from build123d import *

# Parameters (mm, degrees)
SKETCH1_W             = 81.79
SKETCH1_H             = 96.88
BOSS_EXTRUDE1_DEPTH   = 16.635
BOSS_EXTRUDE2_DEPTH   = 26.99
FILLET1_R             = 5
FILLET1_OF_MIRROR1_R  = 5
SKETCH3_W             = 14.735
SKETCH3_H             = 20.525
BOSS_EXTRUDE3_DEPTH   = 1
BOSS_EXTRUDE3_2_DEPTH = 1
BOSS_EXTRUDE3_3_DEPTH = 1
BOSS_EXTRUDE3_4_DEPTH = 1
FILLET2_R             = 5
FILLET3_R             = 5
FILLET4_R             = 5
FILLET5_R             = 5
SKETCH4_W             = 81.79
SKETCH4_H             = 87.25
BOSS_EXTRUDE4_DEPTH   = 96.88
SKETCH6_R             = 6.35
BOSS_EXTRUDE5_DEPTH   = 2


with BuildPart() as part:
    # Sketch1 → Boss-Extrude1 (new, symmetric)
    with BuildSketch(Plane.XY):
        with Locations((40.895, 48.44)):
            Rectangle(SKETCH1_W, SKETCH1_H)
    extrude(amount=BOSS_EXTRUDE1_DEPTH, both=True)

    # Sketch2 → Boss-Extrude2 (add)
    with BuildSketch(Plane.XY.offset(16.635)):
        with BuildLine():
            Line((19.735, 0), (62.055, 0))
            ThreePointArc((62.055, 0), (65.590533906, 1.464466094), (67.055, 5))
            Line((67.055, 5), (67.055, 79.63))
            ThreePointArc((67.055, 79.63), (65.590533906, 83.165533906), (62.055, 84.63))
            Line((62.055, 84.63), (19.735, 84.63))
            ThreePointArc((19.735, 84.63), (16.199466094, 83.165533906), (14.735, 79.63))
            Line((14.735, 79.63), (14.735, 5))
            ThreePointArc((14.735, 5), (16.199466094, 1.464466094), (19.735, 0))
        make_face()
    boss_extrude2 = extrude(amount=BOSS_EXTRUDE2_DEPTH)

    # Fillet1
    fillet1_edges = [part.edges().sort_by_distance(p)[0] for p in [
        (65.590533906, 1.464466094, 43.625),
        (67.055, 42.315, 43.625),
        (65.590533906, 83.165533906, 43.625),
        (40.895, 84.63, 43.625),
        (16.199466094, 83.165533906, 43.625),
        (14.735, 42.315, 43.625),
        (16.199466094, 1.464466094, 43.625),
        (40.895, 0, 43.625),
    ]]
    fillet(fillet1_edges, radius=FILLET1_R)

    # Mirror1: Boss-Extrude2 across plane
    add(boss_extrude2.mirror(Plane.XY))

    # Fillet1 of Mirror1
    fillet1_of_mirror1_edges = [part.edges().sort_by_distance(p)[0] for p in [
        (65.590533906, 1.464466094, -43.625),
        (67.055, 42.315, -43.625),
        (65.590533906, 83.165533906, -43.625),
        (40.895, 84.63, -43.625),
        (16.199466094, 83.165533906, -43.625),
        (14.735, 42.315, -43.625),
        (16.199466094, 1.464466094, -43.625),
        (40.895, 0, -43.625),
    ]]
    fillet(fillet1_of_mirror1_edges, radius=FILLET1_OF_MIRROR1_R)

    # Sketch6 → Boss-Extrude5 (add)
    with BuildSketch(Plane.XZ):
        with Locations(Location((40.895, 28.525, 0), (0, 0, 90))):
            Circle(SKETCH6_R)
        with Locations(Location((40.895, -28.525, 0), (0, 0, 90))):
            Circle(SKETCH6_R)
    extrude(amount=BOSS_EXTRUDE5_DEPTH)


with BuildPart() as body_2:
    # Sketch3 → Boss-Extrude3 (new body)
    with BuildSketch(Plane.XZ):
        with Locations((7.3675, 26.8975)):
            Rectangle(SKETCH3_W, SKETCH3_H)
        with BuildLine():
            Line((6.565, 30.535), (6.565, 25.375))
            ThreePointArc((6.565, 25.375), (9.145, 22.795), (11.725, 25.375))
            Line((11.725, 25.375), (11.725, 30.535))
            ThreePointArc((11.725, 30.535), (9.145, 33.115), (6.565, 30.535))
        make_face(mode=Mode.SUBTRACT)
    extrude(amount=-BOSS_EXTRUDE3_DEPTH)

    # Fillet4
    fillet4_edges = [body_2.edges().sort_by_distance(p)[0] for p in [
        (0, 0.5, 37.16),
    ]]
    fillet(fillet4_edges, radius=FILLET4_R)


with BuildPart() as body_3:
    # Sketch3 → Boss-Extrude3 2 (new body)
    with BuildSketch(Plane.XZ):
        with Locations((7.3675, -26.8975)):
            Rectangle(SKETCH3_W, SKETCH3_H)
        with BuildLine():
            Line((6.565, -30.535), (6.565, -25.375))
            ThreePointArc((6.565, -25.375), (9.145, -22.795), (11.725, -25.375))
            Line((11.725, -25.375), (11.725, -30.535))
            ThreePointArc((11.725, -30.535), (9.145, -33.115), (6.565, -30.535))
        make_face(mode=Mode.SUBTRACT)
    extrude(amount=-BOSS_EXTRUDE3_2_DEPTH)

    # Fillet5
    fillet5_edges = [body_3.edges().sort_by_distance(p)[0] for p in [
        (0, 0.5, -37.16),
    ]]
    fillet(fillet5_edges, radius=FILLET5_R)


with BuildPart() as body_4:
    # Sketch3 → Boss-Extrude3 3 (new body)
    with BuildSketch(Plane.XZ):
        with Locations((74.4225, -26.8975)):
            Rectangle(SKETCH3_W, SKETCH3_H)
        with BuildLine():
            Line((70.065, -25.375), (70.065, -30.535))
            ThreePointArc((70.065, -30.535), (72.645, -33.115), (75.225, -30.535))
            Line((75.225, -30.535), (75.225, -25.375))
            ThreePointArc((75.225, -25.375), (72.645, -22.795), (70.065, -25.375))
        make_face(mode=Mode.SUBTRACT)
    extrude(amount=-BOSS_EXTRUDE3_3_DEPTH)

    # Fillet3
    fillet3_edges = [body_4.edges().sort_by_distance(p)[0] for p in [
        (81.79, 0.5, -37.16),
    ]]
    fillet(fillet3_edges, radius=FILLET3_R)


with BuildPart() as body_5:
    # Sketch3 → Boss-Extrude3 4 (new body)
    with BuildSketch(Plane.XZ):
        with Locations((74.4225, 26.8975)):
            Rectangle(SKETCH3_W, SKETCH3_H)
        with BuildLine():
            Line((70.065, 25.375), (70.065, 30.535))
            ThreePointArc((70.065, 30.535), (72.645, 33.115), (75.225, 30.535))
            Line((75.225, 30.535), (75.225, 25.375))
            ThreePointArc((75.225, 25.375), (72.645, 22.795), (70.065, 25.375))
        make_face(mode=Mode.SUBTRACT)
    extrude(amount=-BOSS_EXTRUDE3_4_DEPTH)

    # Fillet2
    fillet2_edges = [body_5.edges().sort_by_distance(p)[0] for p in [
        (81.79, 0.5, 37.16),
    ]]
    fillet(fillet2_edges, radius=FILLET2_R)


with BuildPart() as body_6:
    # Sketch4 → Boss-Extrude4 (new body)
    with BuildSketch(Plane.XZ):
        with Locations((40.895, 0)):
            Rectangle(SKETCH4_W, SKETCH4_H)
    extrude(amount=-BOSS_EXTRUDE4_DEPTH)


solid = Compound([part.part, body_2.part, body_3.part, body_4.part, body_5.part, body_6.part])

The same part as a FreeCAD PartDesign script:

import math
import FreeCAD as App
import Part
import Sketcher
from FreeCAD import Vector


def edges_at(feature, points):
    """Names of the edges that pass closest to the given points."""
    edges = feature.Shape.Edges
    near = lambda p: min(range(len(edges)), key=lambda i: edges[i].distToShape(Part.Vertex(*p))[0])
    return sorted({f"Edge{near(p) + 1}" for p in points})


def add_polygon(sketch, points):
    """Adds a closed chain of lines whose ends are joined by coincident constraints."""
    first, n = sketch.GeometryCount, len(points)
    for a, b in zip(points, points[1:] + points[:1]):
        sketch.addGeometry(Part.LineSegment(App.Vector(*a, 0), App.Vector(*b, 0)), False)
    for i in range(n):
        sketch.addConstraint(Sketcher.Constraint("Coincident", first + i, 2, first + (i + 1) % n, 1))

doc = App.newDocument("Part")
body = doc.addObject("PartDesign::Body", "Body")

# Sketch on XY plane
sketch1 = doc.addObject("Sketcher::SketchObject", "Sketch")
body.addObject(sketch1)
sketch1.AttachmentSupport = (doc.XY_Plane, [""])
sketch1.MapMode = "FlatFace"
add_polygon(sketch1, [(0, 97), (0, 0), (82, 0), (82, 97)])  # lines 0-3
sketch1.addConstraint([
    Sketcher.Constraint("Vertical", 0),
    Sketcher.Constraint("Horizontal", 1),
    Sketcher.Constraint("Vertical", 2),
    Sketcher.Constraint("Horizontal", 3),
    Sketcher.Constraint("Coincident", 0, 2, -1, 1),
    Sketcher.Constraint("DistanceX", 1, 1, 1, 2, 81.79),
    Sketcher.Constraint("DistanceY", 0, 2, 0, 1, 96.88),
])
pad1 = doc.addObject("PartDesign::Pad", "Pad")
body.addObject(pad1)
pad1.Profile = sketch1
pad1.Length = 33.27
pad1.Midplane = True

# Sketch on XY plane
sketch2 = doc.addObject("Sketcher::SketchObject", "Sketch001")
body.addObject(sketch2)
sketch2.AttachmentSupport = (doc.XY_Plane, [""])
sketch2.MapMode = "FlatFace"
sketch2.AttachmentOffset = App.Placement(Vector(0, 0, 16.635), App.Rotation())
sketch2.addGeometry([
    Part.LineSegment(Vector(20, 0, 0), Vector(62, 0, 0)),  # 0
    Part.ArcOfCircle(Part.Circle(Vector(62, 5, 0), Vector(0, 0, 1), 5), math.radians(-90), math.radians(0)),  # 1
    Part.LineSegment(Vector(67, 5, 0), Vector(67, 80, 0)),  # 2
    Part.ArcOfCircle(Part.Circle(Vector(62, 80, 0), Vector(0, 0, 1), 5), math.radians(0), math.radians(90)),  # 3
    Part.LineSegment(Vector(62, 85, 0), Vector(20, 85, 0)),  # 4
    Part.ArcOfCircle(Part.Circle(Vector(20, 80, 0), Vector(0, 0, 1), 5), math.radians(90), math.radians(180)),  # 5
    Part.LineSegment(Vector(15, 80, 0), Vector(15, 5, 0)),  # 6
    Part.ArcOfCircle(Part.Circle(Vector(20, 5, 0), Vector(0, 0, 1), 5), math.radians(180), math.radians(270)),  # 7
], False)
sketch2.addConstraint([
    Sketcher.Constraint("Tangent", 0, 2, 1, 1),
    Sketcher.Constraint("Tangent", 1, 2, 2, 1),
    Sketcher.Constraint("Tangent", 2, 2, 3, 1),
    Sketcher.Constraint("Tangent", 3, 2, 4, 1),
    Sketcher.Constraint("Tangent", 4, 2, 5, 1),
    Sketcher.Constraint("Tangent", 5, 2, 6, 1),
    Sketcher.Constraint("Tangent", 6, 2, 7, 1),
    Sketcher.Constraint("Tangent", 7, 2, 0, 1),
    Sketcher.Constraint("Horizontal", 0),
    Sketcher.Constraint("Vertical", 2),
    Sketcher.Constraint("Horizontal", 4),
    Sketcher.Constraint("Vertical", 6),
    Sketcher.Constraint("Equal", 1, 3),
    Sketcher.Constraint("Equal", 3, 5),
    Sketcher.Constraint("Equal", 5, 7),
    Sketcher.Constraint("PointOnObject", 0, 2, -1),
    Sketcher.Constraint("Radius", 1, 5.0),
    Sketcher.Constraint("DistanceX", 0, 1, 0, 2, 42.32),
    Sketcher.Constraint("DistanceY", 2, 1, 2, 2, 74.63),
    Sketcher.Constraint("DistanceX", -1, 1, 1, 3, 62.055),
])
pad2 = doc.addObject("PartDesign::Pad", "Pad001")
body.addObject(pad2)
pad2.Profile = sketch2
pad2.Length = 26.99
doc.recompute()

fillet = doc.addObject("PartDesign::Fillet", "Fillet")
body.addObject(fillet)
fillet.Base = (pad2, edges_at(pad2, [
    (65.591, 1.464, 43.625),
    (67.055, 42.315, 43.625),
    (65.591, 83.166, 43.625),
    (40.895, 84.63, 43.625),
    (16.199, 83.166, 43.625),
    (14.735, 42.315, 43.625),
    (16.199, 1.464, 43.625),
    (40.895, 0, 43.625),
]))
fillet.Radius = 5
doc.recompute()

mirrored = doc.addObject("PartDesign::Mirrored", "Mirrored")
body.addObject(mirrored)
mirrored.Originals = [pad2]
mirrored.MirrorPlane = (doc.XY_Plane, [""])
body.Tip = mirrored
doc.recompute()

fillet2 = doc.addObject("PartDesign::Fillet", "Fillet001")
body.addObject(fillet2)
fillet2.Base = (mirrored, edges_at(mirrored, [
    (65.591, 1.464, -43.625),
    (67.055, 42.315, -43.625),
    (65.591, 83.166, -43.625),
    (40.895, 84.63, -43.625),
    (16.199, 83.166, -43.625),
    (14.735, 42.315, -43.625),
    (16.199, 1.464, -43.625),
    (40.895, 0, -43.625),
]))
fillet2.Radius = 5

# Sketch on XZ plane
sketch3 = doc.addObject("Sketcher::SketchObject", "Sketch002")
body.addObject(sketch3)
sketch3.AttachmentSupport = (doc.XZ_Plane, [""])
sketch3.MapMode = "FlatFace"
sketch3.addGeometry([
    Part.Circle(Vector(41, 29, 0), Vector(0, 0, 1), 6),
    Part.Circle(Vector(41, -29, 0), Vector(0, 0, 1), 6),
], False)
sketch3.addConstraint([
    Sketcher.Constraint("Equal", 0, 1),
    Sketcher.Constraint("Symmetric", 0, 3, 1, 3, -1),
    Sketcher.Constraint("Diameter", 0, 12.7),
    Sketcher.Constraint("DistanceY", 1, 3, 0, 3, 57.05),
    Sketcher.Constraint("DistanceX", -1, 1, 0, 3, 40.895),
])
pad3 = doc.addObject("PartDesign::Pad", "Pad002")
body.addObject(pad3)
pad3.Profile = sketch3
pad3.Length = 2
body2 = doc.addObject("PartDesign::Body", "Body001")

# Sketch on XZ plane
sketch4 = doc.addObject("Sketcher::SketchObject", "Sketch003")
body2.addObject(sketch4)
sketch4.AttachmentSupport = (doc.getObject("XZ_Plane001"), [""])
sketch4.MapMode = "FlatFace"
add_polygon(sketch4, [(0, 37.2), (0, 16.6), (14.7, 16.6), (14.7, 37.2)])  # lines 0-3
sketch4.addGeometry(Part.LineSegment(Vector(6.6, 25.4, 0), Vector(6.6, 30.5, 0)), False)  # 4
sketch4.addGeometry(Part.ArcOfCircle(Part.Circle(Vector(9.1, 30.5, 0), Vector(0, 0, 1), 2.6), math.radians(0), math.radians(180)), False)  # 5
sketch4.addGeometry(Part.LineSegment(Vector(11.7, 30.5, 0), Vector(11.7, 25.4, 0)), False)  # 6
sketch4.addGeometry(Part.ArcOfCircle(Part.Circle(Vector(9.1, 25.4, 0), Vector(0, 0, 1), 2.6), math.radians(180), math.radians(360)), False)  # 7
sketch4.addConstraint([
    Sketcher.Constraint("Tangent", 4, 2, 5, 2),
    Sketcher.Constraint("Tangent", 5, 1, 6, 1),
    Sketcher.Constraint("Tangent", 6, 2, 7, 2),
    Sketcher.Constraint("Tangent", 7, 1, 4, 1),
    Sketcher.Constraint("Vertical", 0),
    Sketcher.Constraint("Horizontal", 1),
    Sketcher.Constraint("Vertical", 2),
    Sketcher.Constraint("Horizontal", 3),
    Sketcher.Constraint("Vertical", 4),
    Sketcher.Constraint("Vertical", 6),
    Sketcher.Constraint("PointOnObject", 0, 2, -2),
    Sketcher.Constraint("Radius", 5, 2.58),
    Sketcher.Constraint("DistanceY", 4, 1, 4, 2, 5.16),
    Sketcher.Constraint("DistanceY", 0, 2, 5, 3, 13.9),
    Sketcher.Constraint("DistanceX", 1, 1, 1, 2, 14.735),
    Sketcher.Constraint("DistanceY", 0, 2, 0, 1, 20.525),
    Sketcher.Constraint("DistanceY", -1, 1, 2, 2, 37.16),
    Sketcher.Constraint("DistanceX", 7, 3, 1, 2, 5.59),
])
pad4 = doc.addObject("PartDesign::Pad", "Pad003")
body2.addObject(pad4)
pad4.Profile = sketch4
pad4.Length = 1
pad4.Reversed = True
doc.recompute()

fillet3 = doc.addObject("PartDesign::Fillet", "Fillet002")
body2.addObject(fillet3)
fillet3.Base = (pad4, edges_at(pad4, [(0, 0.5, 37.16)]))
fillet3.Radius = 5
body3 = doc.addObject("PartDesign::Body", "Body002")

# Sketch on XZ plane
sketch5 = doc.addObject("Sketcher::SketchObject", "Sketch004")
body3.addObject(sketch5)
sketch5.AttachmentSupport = (doc.getObject("XZ_Plane002"), [""])
sketch5.MapMode = "FlatFace"
add_polygon(sketch5, [(0, -16.6), (0, -37.2), (14.7, -37.2), (14.7, -16.6)])  # lines 0-3
sketch5.addGeometry(Part.ArcOfCircle(Part.Circle(Vector(9.1, -30.5, 0), Vector(0, 0, 1), 2.6), math.radians(180), math.radians(360)), False)  # 4
sketch5.addGeometry(Part.LineSegment(Vector(6.6, -30.5, 0), Vector(6.6, -25.4, 0)), False)  # 5
sketch5.addGeometry(Part.ArcOfCircle(Part.Circle(Vector(9.1, -25.4, 0), Vector(0, 0, 1), 2.6), math.radians(0), math.radians(180)), False)  # 6
sketch5.addGeometry(Part.LineSegment(Vector(11.7, -25.4, 0), Vector(11.7, -30.5, 0)), False)  # 7
sketch5.addConstraint([
    Sketcher.Constraint("Tangent", 4, 1, 5, 1),
    Sketcher.Constraint("Tangent", 5, 2, 6, 2),
    Sketcher.Constraint("Tangent", 6, 1, 7, 1),
    Sketcher.Constraint("Tangent", 7, 2, 4, 2),
    Sketcher.Constraint("Vertical", 0),
    Sketcher.Constraint("Horizontal", 1),
    Sketcher.Constraint("Vertical", 2),
    Sketcher.Constraint("Horizontal", 3),
    Sketcher.Constraint("Vertical", 5),
    Sketcher.Constraint("Vertical", 7),
    Sketcher.Constraint("PointOnObject", 0, 2, -2),
    Sketcher.Constraint("Radius", 4, 2.58),
    Sketcher.Constraint("DistanceY", 5, 1, 5, 2, 5.16),
    Sketcher.Constraint("DistanceY", 4, 3, 2, 2, 13.9),
    Sketcher.Constraint("DistanceX", 1, 1, 1, 2, 14.735),
    Sketcher.Constraint("DistanceY", 0, 2, 0, 1, 20.525),
    Sketcher.Constraint("DistanceY", 0, 2, -1, 1, 37.16),
    Sketcher.Constraint("DistanceX", 4, 3, 1, 2, 5.59),
])
pad5 = doc.addObject("PartDesign::Pad", "Pad004")
body3.addObject(pad5)
pad5.Profile = sketch5
pad5.Length = 1
pad5.Reversed = True
doc.recompute()

fillet4 = doc.addObject("PartDesign::Fillet", "Fillet003")
body3.addObject(fillet4)
fillet4.Base = (pad5, edges_at(pad5, [(0, 0.5, -37.16)]))
fillet4.Radius = 5
body4 = doc.addObject("PartDesign::Body", "Body003")

# Sketch on XZ plane
sketch6 = doc.addObject("Sketcher::SketchObject", "Sketch005")
body4.addObject(sketch6)
sketch6.AttachmentSupport = (doc.getObject("XZ_Plane003"), [""])
sketch6.MapMode = "FlatFace"
add_polygon(sketch6, [(67.1, -16.6), (67.1, -37.2), (81.8, -37.2), (81.8, -16.6)])  # lines 0-3
sketch6.addGeometry(Part.LineSegment(Vector(70.1, -30.5, 0), Vector(70.1, -25.4, 0)), False)  # 4
sketch6.addGeometry(Part.ArcOfCircle(Part.Circle(Vector(72.6, -25.4, 0), Vector(0, 0, 1), 2.6), math.radians(0), math.radians(180)), False)  # 5
sketch6.addGeometry(Part.LineSegment(Vector(75.2, -25.4, 0), Vector(75.2, -30.5, 0)), False)  # 6
sketch6.addGeometry(Part.ArcOfCircle(Part.Circle(Vector(72.6, -30.5, 0), Vector(0, 0, 1), 2.6), math.radians(180), math.radians(360)), False)  # 7
sketch6.addConstraint([
    Sketcher.Constraint("Tangent", 4, 2, 5, 2),
    Sketcher.Constraint("Tangent", 5, 1, 6, 1),
    Sketcher.Constraint("Tangent", 6, 2, 7, 2),
    Sketcher.Constraint("Tangent", 7, 1, 4, 1),
    Sketcher.Constraint("Vertical", 0),
    Sketcher.Constraint("Horizontal", 1),
    Sketcher.Constraint("Vertical", 2),
    Sketcher.Constraint("Horizontal", 3),
    Sketcher.Constraint("Vertical", 4),
    Sketcher.Constraint("Vertical", 6),
    Sketcher.Constraint("Radius", 5, 2.58),
    Sketcher.Constraint("DistanceY", 4, 1, 4, 2, 5.16),
    Sketcher.Constraint("DistanceY", 7, 3, 2, 2, 13.9),
    Sketcher.Constraint("DistanceX", 1, 1, 1, 2, 14.735),
    Sketcher.Constraint("DistanceY", 0, 2, 0, 1, 20.525),
    Sketcher.Constraint("DistanceY", 0, 2, -1, 1, 37.16),
    Sketcher.Constraint("DistanceX", -1, 1, 1, 2, 81.79),
    Sketcher.Constraint("DistanceX", 0, 2, 7, 3, 5.59),
])
pad6 = doc.addObject("PartDesign::Pad", "Pad005")
body4.addObject(pad6)
pad6.Profile = sketch6
pad6.Length = 1
pad6.Reversed = True
doc.recompute()

fillet5 = doc.addObject("PartDesign::Fillet", "Fillet004")
body4.addObject(fillet5)
fillet5.Base = (pad6, edges_at(pad6, [(81.79, 0.5, -37.16)]))
fillet5.Radius = 5
body5 = doc.addObject("PartDesign::Body", "Body004")

# Sketch on XZ plane
sketch7 = doc.addObject("Sketcher::SketchObject", "Sketch006")
body5.addObject(sketch7)
sketch7.AttachmentSupport = (doc.getObject("XZ_Plane004"), [""])
sketch7.MapMode = "FlatFace"
add_polygon(sketch7, [(67.1, 37.2), (67.1, 16.6), (81.8, 16.6), (81.8, 37.2)])  # lines 0-3
sketch7.addGeometry(Part.ArcOfCircle(Part.Circle(Vector(72.6, 25.4, 0), Vector(0, 0, 1), 2.6), math.radians(180), math.radians(360)), False)  # 4
sketch7.addGeometry(Part.LineSegment(Vector(70.1, 25.4, 0), Vector(70.1, 30.5, 0)), False)  # 5
sketch7.addGeometry(Part.ArcOfCircle(Part.Circle(Vector(72.6, 30.5, 0), Vector(0, 0, 1), 2.6), math.radians(0), math.radians(180)), False)  # 6
sketch7.addGeometry(Part.LineSegment(Vector(75.2, 30.5, 0), Vector(75.2, 25.4, 0)), False)  # 7
sketch7.addConstraint([
    Sketcher.Constraint("Tangent", 4, 1, 5, 1),
    Sketcher.Constraint("Tangent", 5, 2, 6, 2),
    Sketcher.Constraint("Tangent", 6, 1, 7, 1),
    Sketcher.Constraint("Tangent", 7, 2, 4, 2),
    Sketcher.Constraint("Vertical", 0),
    Sketcher.Constraint("Horizontal", 1),
    Sketcher.Constraint("Vertical", 2),
    Sketcher.Constraint("Horizontal", 3),
    Sketcher.Constraint("Vertical", 5),
    Sketcher.Constraint("Vertical", 7),
    Sketcher.Constraint("Radius", 4, 2.58),
    Sketcher.Constraint("DistanceY", 5, 1, 5, 2, 5.16),
    Sketcher.Constraint("DistanceY", 0, 2, 6, 3, 13.9),
    Sketcher.Constraint("DistanceX", 1, 1, 1, 2, 14.735),
    Sketcher.Constraint("DistanceY", 0, 2, 0, 1, 20.525),
    Sketcher.Constraint("DistanceX", -1, 1, 1, 2, 81.79),
    Sketcher.Constraint("DistanceY", -1, 1, 2, 2, 37.16),
    Sketcher.Constraint("DistanceX", 0, 2, 4, 3, 5.59),
])
pad7 = doc.addObject("PartDesign::Pad", "Pad006")
body5.addObject(pad7)
pad7.Profile = sketch7
pad7.Length = 1
pad7.Reversed = True
doc.recompute()

fillet6 = doc.addObject("PartDesign::Fillet", "Fillet005")
body5.addObject(fillet6)
fillet6.Base = (pad7, edges_at(pad7, [(81.79, 0.5, 37.16)]))
fillet6.Radius = 5
body6 = doc.addObject("PartDesign::Body", "Body005")

# Sketch on XZ plane
sketch8 = doc.addObject("Sketcher::SketchObject", "Sketch007")
body6.addObject(sketch8)
sketch8.AttachmentSupport = (doc.getObject("XZ_Plane005"), [""])
sketch8.MapMode = "FlatFace"
add_polygon(sketch8, [(0, 44), (0, -44), (82, -44), (82, 44)])  # lines 0-3
sketch8.addConstraint([
    Sketcher.Constraint("Vertical", 0),
    Sketcher.Constraint("Horizontal", 1),
    Sketcher.Constraint("Vertical", 2),
    Sketcher.Constraint("Horizontal", 3),
    Sketcher.Constraint("Symmetric", 0, 2, 3, 2, -1, 1),
    Sketcher.Constraint("DistanceX", 1, 1, 1, 2, 81.79),
    Sketcher.Constraint("DistanceY", 0, 2, 0, 1, 87.25),
])
pad8 = doc.addObject("PartDesign::Pad", "Pad007")
body6.addObject(pad8)
pad8.Profile = sketch8
pad8.Length = 96.88
pad8.Reversed = True

doc.recompute()
